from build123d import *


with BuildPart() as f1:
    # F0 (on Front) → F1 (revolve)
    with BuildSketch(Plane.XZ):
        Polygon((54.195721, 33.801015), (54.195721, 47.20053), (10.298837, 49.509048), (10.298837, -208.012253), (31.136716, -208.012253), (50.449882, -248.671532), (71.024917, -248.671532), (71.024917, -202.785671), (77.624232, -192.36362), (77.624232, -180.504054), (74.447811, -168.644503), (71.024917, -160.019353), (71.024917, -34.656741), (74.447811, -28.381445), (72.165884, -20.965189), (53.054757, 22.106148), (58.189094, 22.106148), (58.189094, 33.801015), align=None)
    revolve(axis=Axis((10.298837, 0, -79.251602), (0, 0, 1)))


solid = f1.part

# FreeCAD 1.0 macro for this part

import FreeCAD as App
import Part
import Sketcher
from FreeCAD import Vector
Q = App.Units.Quantity

doc = App.newDocument("Part")
body = doc.addObject("PartDesign::Body", "Body")

sketch1 = body.newObject("Sketcher::SketchObject", "Sketch")
sketch1.AttachmentSupport = (doc.getObject("XZ_Plane"), [""])
sketch1.MapMode = "FlatFace"
sketch1.addGeometry([
    Part.LineSegment(Vector(54.2, 33.8, 0), Vector(54.2, 47.2, 0)),
    Part.LineSegment(Vector(54.2, 47.2, 0), Vector(10.3, 49.5, 0)),
    Part.LineSegment(Vector(10.3, 49.5, 0), Vector(10.3, -208, 0)),
    Part.LineSegment(Vector(10.3, -208, 0), Vector(31.1, -208, 0)),
    Part.LineSegment(Vector(31.1, -208, 0), Vector(50.4, -248.7, 0)),
    Part.LineSegment(Vector(50.4, -248.7, 0), Vector(71, -248.7, 0)),
    Part.LineSegment(Vector(71, -248.7, 0), Vector(71, -202.8, 0)),
    Part.LineSegment(Vector(71, -202.8, 0), Vector(77.6, -192.4, 0)),
    Part.LineSegment(Vector(77.6, -192.4, 0), Vector(77.6, -180.5, 0)),
    Part.LineSegment(Vector(77.6, -180.5, 0), Vector(74.4, -168.6, 0)),
    Part.LineSegment(Vector(74.4, -168.6, 0), Vector(71, -160, 0)),
    Part.LineSegment(Vector(71, -160, 0), Vector(71, -34.7, 0)),
    Part.LineSegment(Vector(71, -34.7, 0), Vector(74.4, -28.4, 0)),
    Part.LineSegment(Vector(74.4, -28.4, 0), Vector(72.2, -21, 0)),
    Part.LineSegment(Vector(72.2, -21, 0), Vector(53.1, 22.1, 0)),
    Part.LineSegment(Vector(53.1, 22.1, 0), Vector(58.2, 22.1, 0)),
    Part.LineSegment(Vector(58.2, 22.1, 0), Vector(58.2, 33.8, 0)),
    Part.LineSegment(Vector(58.2, 33.8, 0), Vector(54.2, 33.8, 0)),
], False)
sketch1.addGeometry(Part.LineSegment(Vector(10.3, -248.7, 0), Vector(10.3, 49.5, 0)), True)
sketch1.addConstraint([
    Sketcher.Constraint("Coincident", 0, 2, 1, 1),
    Sketcher.Constraint("Coincident", 1, 2, 2, 1),
    Sketcher.Constraint("Coincident", 2, 2, 3, 1),
    Sketcher.Constraint("Coincident", 3, 2, 4, 1),
    Sketcher.Constraint("Coincident", 4, 2, 5, 1),
    Sketcher.Constraint("Coincident", 5, 2, 6, 1),
    Sketcher.Constraint("Coincident", 6, 2, 7, 1),
    Sketcher.Constraint("Coincident", 7, 2, 8, 1),
    Sketcher.Constraint("Coincident", 8, 2, 9, 1),
    Sketcher.Constraint("Coincident", 9, 2, 10, 1),
    Sketcher.Constraint("Coincident", 10, 2, 11, 1),
    Sketcher.Constraint("Coincident", 11, 2, 12, 1),
    Sketcher.Constraint("Coincident", 12, 2, 13, 1),
    Sketcher.Constraint("Coincident", 13, 2, 14, 1),
    Sketcher.Constraint("Coincident", 14, 2, 15, 1),
    Sketcher.Constraint("Coincident", 15, 2, 16, 1),
    Sketcher.Constraint("Coincident", 16, 2, 17, 1),
    Sketcher.Constraint("Coincident", 17, 2, 0, 1),
    Sketcher.Constraint("Vertical", 0),
    Sketcher.Constraint("Vertical", 2),
    Sketcher.Constraint("Horizontal", 3),
    Sketcher.Constraint("Horizontal", 5),
    Sketcher.Constraint("Vertical", 6),
    Sketcher.Constraint("Vertical", 8),
    Sketcher.Constraint("Vertical", 11),
    Sketcher.Constraint("Horizontal", 15),
    Sketcher.Constraint("Vertical", 16),
    Sketcher.Constraint("Horizontal", 17),
    Sketcher.Constraint("Vertical", 18),
    Sketcher.Constraint("Coincident", 18, 2, 1, 2),
    Sketcher.Constraint("Horizontal", 5, 2, 18, 1),
    Sketcher.Constraint("Vertical", 6, 2, 10, 2),
    Sketcher.Constraint("Vertical", 9, 2, 12, 2),
    Sketcher.Constraint("DistanceY", 2, 2, 2, 1, Q("257.521301 mm")),
    Sketcher.Constraint("DistanceX", 3, 1, 3, 2, Q("20.837879 mm")),
    Sketcher.Constraint("DistanceY", 6, 1, 6, 2, Q("45.885861 mm")),
    Sketcher.Constraint("DistanceY", 11, 1, 11, 2, Q("125.362612 mm")),
    Sketcher.Constraint("DistanceY", 18, 1, 18, 2, Q("298.18058 mm")),
    Sketcher.Constraint("DistanceX", 3, 2, 5, 2, Q("39.888201 mm")),
    Sketcher.Constraint("DistanceY", 6, 2, 0, 2, Q("249.986201 mm")),
    Sketcher.Constraint("DistanceY", 3, 2, 8, 2, Q("27.508199 mm")),
    Sketcher.Constraint("DistanceY", 8, 2, 10, 2, Q("20.484701 mm")),
    Sketcher.Constraint("DistanceY", 14, 2, 1, 2, Q("27.4029 mm")),
    Sketcher.Constraint("DistanceX", 5, 1, 5, 2, Q("20.575035 mm")),
    Sketcher.Constraint("DistanceX", 15, 1, 15, 2, Q("5.134337 mm")),
    Sketcher.Constraint("DistanceX", 17, 2, 17, 1, Q("3.993373 mm")),
    Sketcher.Constraint("DistanceY", 0, 1, 0, 2, Q("13.399515 mm")),
    Sketcher.Constraint("DistanceY", 8, 1, 8, 2, Q("11.859566 mm")),
    Sketcher.Constraint("DistanceX", -1, 1, 0, 2, Q("54.195721 mm")),
    Sketcher.Constraint("DistanceY", -1, 1, 0, 2, Q("47.20053 mm")),
    Sketcher.Constraint("DistanceX", -1, 1, 9, 2, Q("74.447811 mm")),
    Sketcher.Constraint("DistanceY", 13, 2, -1, 1, Q("20.965189 mm")),
    Sketcher.Constraint("DistanceX", 4, 2, 0, 2, Q("3.745839 mm")),
    Sketcher.Constraint("DistanceX", 4, 2, 7, 2, Q("27.17435 mm")),
    Sketcher.Constraint("DistanceY", 8, 2, 9, 2, Q("11.859551 mm")),
    Sketcher.Constraint("DistanceY", 9, 2, 12, 2, Q("140.263058 mm")),
    Sketcher.Constraint("DistanceX", 15, 2, 13, 2, Q("13.97679 mm")),
])
revolution = body.newObject("PartDesign::Revolution", "Revolution")
revolution.Profile = sketch1
revolution.ReferenceAxis = (sketch1, ["Axis0"])
revolution.Angle = 360

doc.recompute()
